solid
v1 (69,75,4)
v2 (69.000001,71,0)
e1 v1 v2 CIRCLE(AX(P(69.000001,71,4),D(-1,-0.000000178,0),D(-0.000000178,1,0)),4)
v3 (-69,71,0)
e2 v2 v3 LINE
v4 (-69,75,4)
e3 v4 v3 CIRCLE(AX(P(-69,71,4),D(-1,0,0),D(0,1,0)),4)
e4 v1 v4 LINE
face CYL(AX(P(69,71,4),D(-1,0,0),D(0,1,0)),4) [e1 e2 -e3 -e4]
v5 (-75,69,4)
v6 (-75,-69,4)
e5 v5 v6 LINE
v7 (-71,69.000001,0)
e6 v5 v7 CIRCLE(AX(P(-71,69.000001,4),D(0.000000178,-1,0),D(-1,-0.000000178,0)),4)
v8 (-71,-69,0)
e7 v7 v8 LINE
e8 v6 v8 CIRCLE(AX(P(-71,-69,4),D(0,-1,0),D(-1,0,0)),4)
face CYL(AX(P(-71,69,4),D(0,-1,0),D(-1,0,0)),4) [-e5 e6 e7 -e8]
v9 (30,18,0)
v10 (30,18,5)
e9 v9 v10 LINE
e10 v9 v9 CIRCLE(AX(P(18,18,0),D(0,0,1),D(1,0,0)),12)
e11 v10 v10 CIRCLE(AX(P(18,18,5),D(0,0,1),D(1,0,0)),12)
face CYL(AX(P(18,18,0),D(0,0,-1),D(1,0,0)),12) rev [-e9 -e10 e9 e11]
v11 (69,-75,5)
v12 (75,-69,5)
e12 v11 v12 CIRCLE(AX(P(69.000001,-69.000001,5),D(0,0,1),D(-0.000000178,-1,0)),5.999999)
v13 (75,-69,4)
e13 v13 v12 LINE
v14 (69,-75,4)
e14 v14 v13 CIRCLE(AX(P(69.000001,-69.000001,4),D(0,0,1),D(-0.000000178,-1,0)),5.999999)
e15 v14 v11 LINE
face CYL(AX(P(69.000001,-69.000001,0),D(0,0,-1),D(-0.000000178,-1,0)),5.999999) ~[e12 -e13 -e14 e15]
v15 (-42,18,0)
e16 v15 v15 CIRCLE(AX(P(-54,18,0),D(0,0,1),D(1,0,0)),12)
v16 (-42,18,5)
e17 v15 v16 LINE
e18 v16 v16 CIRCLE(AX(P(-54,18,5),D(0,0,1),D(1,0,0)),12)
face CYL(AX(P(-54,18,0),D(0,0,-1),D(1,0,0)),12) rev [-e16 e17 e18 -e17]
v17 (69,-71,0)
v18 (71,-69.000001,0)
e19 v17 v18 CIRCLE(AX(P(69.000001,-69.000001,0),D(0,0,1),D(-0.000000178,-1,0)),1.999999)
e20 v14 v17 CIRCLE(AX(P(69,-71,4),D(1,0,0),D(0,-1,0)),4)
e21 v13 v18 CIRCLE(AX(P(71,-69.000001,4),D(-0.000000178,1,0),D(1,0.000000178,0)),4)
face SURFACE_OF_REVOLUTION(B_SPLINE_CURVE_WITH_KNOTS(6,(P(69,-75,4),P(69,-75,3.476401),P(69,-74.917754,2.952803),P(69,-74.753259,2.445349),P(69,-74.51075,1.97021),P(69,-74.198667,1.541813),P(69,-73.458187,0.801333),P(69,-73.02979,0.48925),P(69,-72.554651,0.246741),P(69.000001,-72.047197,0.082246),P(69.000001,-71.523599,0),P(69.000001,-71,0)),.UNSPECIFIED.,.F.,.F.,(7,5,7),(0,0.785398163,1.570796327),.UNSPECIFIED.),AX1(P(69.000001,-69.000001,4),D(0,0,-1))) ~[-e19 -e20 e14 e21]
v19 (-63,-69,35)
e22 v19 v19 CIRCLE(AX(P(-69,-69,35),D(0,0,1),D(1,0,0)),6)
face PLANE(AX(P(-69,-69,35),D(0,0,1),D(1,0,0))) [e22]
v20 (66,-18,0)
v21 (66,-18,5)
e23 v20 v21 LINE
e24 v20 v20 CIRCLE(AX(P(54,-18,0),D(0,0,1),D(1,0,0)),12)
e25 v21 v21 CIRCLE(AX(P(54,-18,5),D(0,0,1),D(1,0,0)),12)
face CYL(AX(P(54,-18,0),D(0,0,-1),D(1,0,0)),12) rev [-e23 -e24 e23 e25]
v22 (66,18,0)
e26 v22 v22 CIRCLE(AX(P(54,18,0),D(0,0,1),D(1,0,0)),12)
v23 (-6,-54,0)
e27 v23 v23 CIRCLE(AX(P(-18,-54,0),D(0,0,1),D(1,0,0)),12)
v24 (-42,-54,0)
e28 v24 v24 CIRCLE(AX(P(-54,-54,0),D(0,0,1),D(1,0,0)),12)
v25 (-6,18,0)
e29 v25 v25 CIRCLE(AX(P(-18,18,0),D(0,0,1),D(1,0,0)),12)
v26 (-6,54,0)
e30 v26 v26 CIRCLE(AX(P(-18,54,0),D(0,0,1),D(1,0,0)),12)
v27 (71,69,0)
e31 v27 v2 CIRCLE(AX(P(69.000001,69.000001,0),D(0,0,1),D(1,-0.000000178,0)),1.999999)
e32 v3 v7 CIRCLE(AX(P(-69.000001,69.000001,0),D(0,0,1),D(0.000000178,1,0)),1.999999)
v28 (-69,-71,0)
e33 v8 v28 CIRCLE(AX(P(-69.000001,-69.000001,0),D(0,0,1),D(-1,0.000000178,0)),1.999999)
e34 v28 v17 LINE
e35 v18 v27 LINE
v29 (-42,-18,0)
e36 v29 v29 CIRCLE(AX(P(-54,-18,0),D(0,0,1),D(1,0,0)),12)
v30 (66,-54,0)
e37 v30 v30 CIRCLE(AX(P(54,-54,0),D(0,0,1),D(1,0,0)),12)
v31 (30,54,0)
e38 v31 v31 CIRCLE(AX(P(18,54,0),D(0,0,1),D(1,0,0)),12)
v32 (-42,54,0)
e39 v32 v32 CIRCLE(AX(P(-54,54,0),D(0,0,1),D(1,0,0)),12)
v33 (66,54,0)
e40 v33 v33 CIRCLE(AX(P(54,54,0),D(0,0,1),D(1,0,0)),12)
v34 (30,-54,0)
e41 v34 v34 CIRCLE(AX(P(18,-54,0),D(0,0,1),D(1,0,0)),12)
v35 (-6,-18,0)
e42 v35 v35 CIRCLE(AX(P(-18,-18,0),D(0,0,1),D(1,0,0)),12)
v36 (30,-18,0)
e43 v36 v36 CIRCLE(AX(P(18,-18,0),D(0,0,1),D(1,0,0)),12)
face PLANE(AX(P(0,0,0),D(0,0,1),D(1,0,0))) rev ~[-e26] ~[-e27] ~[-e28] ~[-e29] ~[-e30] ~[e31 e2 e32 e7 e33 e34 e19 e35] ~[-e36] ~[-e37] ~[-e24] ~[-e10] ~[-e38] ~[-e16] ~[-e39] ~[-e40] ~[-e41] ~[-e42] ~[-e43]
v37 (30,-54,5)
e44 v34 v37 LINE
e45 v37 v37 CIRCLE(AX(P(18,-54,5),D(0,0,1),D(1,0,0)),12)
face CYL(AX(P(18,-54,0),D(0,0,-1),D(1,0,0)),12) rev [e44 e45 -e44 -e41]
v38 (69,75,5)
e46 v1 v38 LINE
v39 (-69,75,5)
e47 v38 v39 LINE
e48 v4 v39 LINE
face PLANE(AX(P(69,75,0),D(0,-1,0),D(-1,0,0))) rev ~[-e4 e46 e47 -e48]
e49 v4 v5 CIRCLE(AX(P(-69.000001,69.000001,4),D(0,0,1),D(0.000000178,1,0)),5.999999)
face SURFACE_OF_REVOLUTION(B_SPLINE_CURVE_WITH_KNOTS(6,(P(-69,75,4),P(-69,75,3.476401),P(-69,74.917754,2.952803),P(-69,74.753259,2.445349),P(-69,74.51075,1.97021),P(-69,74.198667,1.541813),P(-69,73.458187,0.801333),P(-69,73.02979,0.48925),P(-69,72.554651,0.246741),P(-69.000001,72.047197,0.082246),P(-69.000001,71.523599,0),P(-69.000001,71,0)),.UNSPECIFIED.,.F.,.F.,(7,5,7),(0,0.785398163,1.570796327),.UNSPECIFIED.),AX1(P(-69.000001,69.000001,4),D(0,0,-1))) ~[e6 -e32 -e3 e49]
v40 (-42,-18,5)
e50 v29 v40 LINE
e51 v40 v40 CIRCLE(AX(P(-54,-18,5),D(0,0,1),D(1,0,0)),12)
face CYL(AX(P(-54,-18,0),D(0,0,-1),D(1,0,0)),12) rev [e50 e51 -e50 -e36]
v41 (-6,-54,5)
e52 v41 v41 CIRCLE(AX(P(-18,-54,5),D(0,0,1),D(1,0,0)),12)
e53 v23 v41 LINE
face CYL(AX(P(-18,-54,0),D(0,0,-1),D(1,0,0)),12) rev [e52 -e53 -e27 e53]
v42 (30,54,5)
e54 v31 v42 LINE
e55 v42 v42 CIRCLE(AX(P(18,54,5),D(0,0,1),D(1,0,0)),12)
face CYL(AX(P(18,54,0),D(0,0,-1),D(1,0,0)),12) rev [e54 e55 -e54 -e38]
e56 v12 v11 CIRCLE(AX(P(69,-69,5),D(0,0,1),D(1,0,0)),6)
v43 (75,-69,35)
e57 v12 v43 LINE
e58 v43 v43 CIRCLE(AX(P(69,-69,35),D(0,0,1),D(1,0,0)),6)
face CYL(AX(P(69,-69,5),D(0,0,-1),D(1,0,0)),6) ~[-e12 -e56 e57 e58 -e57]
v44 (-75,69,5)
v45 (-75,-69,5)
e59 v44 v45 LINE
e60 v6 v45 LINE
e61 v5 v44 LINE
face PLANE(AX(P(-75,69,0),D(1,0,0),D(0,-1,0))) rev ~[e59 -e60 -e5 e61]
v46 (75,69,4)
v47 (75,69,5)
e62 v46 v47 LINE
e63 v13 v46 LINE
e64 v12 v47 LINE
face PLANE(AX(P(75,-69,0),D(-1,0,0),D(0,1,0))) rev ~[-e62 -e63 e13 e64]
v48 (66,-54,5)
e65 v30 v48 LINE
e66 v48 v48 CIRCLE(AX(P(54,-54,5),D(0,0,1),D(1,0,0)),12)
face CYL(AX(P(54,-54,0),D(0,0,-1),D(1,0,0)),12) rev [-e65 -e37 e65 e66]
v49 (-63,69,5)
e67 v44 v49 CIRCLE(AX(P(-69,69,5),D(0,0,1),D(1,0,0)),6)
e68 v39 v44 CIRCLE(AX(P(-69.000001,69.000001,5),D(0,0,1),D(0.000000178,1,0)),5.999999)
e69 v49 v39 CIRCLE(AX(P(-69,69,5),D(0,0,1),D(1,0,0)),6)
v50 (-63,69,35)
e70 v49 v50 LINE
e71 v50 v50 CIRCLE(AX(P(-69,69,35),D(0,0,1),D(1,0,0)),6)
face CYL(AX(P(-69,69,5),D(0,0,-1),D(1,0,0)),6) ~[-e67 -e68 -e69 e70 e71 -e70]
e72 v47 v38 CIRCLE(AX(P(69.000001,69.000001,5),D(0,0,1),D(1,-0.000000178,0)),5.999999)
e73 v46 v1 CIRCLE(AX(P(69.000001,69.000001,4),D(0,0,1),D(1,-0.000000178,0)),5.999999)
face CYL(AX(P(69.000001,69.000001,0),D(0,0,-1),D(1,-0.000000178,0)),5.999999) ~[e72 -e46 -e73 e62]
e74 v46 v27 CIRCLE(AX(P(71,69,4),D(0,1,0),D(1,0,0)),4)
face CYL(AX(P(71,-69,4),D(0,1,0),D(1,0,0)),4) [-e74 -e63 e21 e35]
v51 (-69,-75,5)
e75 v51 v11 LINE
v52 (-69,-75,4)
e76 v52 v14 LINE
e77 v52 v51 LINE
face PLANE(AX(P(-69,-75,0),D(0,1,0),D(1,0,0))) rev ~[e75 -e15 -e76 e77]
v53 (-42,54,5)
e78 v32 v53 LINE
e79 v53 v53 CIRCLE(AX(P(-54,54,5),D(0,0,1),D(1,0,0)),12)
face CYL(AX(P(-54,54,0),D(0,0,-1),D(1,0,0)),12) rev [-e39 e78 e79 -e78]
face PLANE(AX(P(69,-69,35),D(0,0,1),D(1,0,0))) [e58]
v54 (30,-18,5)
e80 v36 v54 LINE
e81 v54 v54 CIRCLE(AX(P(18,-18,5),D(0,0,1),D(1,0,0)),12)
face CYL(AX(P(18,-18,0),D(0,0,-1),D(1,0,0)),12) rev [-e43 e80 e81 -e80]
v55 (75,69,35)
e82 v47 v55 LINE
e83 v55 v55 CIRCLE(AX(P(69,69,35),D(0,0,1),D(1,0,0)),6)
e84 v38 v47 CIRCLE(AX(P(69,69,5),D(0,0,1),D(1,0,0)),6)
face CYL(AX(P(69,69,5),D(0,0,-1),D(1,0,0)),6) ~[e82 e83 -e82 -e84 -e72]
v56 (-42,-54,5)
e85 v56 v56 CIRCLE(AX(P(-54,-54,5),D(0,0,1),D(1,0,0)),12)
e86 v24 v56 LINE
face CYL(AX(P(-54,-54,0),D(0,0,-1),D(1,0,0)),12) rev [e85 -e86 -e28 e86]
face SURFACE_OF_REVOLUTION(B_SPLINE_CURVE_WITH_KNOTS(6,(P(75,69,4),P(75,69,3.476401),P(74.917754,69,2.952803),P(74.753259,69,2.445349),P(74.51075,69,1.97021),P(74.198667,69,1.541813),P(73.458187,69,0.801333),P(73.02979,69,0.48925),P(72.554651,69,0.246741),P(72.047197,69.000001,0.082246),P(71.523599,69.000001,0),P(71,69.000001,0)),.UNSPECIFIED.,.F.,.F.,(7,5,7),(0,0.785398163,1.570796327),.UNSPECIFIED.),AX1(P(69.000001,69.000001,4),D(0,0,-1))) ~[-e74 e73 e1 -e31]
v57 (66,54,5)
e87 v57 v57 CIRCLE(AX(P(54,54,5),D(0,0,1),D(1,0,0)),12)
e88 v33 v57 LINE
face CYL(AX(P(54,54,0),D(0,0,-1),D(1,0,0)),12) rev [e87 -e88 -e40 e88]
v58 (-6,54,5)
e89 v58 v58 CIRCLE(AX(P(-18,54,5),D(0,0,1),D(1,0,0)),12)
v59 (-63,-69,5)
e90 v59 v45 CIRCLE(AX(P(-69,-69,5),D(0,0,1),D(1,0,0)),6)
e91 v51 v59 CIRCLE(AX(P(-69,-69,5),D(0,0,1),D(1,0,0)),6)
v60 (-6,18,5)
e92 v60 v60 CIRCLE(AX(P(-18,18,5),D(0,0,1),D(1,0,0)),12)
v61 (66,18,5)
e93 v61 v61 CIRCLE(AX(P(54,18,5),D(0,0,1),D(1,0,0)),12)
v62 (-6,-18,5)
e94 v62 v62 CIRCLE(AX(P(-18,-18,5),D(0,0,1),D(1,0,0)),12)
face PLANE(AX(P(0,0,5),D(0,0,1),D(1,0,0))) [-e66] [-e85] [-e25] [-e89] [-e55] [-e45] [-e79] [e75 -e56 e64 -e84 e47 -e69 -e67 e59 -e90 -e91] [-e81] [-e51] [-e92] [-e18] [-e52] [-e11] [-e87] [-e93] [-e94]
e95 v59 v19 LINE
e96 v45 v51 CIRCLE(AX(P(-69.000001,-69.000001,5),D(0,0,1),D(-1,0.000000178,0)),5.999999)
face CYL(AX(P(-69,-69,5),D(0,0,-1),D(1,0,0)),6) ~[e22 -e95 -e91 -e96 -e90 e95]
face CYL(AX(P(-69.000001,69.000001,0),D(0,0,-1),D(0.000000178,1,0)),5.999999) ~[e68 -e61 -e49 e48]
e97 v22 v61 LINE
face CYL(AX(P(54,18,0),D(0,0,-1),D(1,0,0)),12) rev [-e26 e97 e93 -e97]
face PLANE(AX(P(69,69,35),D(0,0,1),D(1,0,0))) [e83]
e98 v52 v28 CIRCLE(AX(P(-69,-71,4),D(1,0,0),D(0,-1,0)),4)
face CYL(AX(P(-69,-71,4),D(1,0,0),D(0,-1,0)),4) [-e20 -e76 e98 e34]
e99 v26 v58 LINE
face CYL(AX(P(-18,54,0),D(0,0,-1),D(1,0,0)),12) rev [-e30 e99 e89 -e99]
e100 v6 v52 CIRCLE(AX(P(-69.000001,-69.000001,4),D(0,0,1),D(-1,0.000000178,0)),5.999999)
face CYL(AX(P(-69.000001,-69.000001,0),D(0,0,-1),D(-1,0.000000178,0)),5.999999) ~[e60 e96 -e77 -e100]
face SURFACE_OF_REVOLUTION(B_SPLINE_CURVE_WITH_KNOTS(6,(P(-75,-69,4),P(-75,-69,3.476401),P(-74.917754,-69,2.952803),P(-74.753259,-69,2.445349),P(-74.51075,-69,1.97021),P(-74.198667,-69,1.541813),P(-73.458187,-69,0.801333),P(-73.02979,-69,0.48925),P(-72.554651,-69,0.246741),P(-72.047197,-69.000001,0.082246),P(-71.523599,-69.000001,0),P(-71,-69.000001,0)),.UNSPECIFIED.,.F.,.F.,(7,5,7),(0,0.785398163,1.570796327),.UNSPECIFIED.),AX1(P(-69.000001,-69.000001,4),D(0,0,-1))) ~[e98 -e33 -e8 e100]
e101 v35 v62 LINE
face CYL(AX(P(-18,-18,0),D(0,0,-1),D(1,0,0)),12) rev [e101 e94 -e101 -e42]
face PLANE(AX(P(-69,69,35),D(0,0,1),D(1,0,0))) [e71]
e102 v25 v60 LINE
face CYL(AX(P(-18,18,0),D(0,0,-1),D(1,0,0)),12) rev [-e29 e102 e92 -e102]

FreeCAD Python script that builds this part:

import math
import FreeCAD as App
import Part
import Sketcher
from FreeCAD import Vector
Q = App.Units.Quantity


def edges_at(feature, points):
    """Names of the edges that pass closest to the given points."""
    edges = feature.Shape.Edges
    near = lambda p: min(range(len(edges)), key=lambda i: edges[i].distToShape(Part.Vertex(*p))[0])
    return sorted({f"Edge{near(p) + 1}" for p in points})

doc = App.newDocument("Part")
body = doc.addObject("PartDesign::Body", "Body")

# Sketch on XY plane
sketch1 = doc.addObject("Sketcher::SketchObject", "Sketch")
body.addObject(sketch1)
sketch1.AttachmentSupport = (doc.XY_Plane, [""])
sketch1.MapMode = "FlatFace"
sketch1.addGeometry(Part.LineSegment(Vector(-69, -75, 0), Vector(69, -75, 0)), False)
sketch1.addGeometry(Part.ArcOfCircle(Part.Circle(Vector(69, -69, 0), Vector(0, 0, 1), 6), math.radians(-90), math.radians(0)), False)
sketch1.addGeometry(Part.LineSegment(Vector(75, -69, 0), Vector(75, 69, 0)), False)
sketch1.addGeometry(Part.ArcOfCircle(Part.Circle(Vector(69, 69, 0), Vector(0, 0, 1), 6), math.radians(0), math.radians(90)), False)
sketch1.addGeometry(Part.LineSegment(Vector(69, 75, 0), Vector(-69, 75, 0)), False)
sketch1.addGeometry(Part.ArcOfCircle(Part.Circle(Vector(-69, 69, 0), Vector(0, 0, 1), 6), math.radians(90), math.radians(180)), False)
sketch1.addGeometry(Part.LineSegment(Vector(-75, 69, 0), Vector(-75, -69, 0)), False)
sketch1.addGeometry(Part.ArcOfCircle(Part.Circle(Vector(-69, -69, 0), Vector(0, 0, 1), 6), math.radians(180), math.radians(270)), False)
sketch1.addGeometry(Part.Circle(Vector(-54, -54, 0), Vector(0, 0, 1), 12), False)
sketch1.addGeometry(Part.Circle(Vector(-18, -54, 0), Vector(0, 0, 1), 12), False)
sketch1.addGeometry(Part.Circle(Vector(-54, -18, 0), Vector(0, 0, 1), 12), False)
sketch1.addGeometry(Part.Circle(Vector(-18, -18, 0), Vector(0, 0, 1), 12), False)
sketch1.addGeometry(Part.Circle(Vector(18, -54, 0), Vector(0, 0, 1), 12), False)
sketch1.addGeometry(Part.Circle(Vector(54, -54, 0), Vector(0, 0, 1), 12), False)
sketch1.addGeometry(Part.Circle(Vector(18, -18, 0), Vector(0, 0, 1), 12), False)
sketch1.addGeometry(Part.Circle(Vector(54, -18, 0), Vector(0, 0, 1), 12), False)
sketch1.addGeometry(Part.Circle(Vector(-54, 18, 0), Vector(0, 0, 1), 12), False)
sketch1.addGeometry(Part.Circle(Vector(-18, 18, 0), Vector(0, 0, 1), 12), False)
sketch1.addGeometry(Part.Circle(Vector(-54, 54, 0), Vector(0, 0, 1), 12), False)
sketch1.addGeometry(Part.Circle(Vector(-18, 54, 0), Vector(0, 0, 1), 12), False)
sketch1.addGeometry(Part.Circle(Vector(18, 18, 0), Vector(0, 0, 1), 12), False)
sketch1.addGeometry(Part.Circle(Vector(54, 18, 0), Vector(0, 0, 1), 12), False)
sketch1.addGeometry(Part.Circle(Vector(18, 54, 0), Vector(0, 0, 1), 12), False)
sketch1.addGeometry(Part.Circle(Vector(54, 54, 0), Vector(0, 0, 1), 12), False)
sketch1.addConstraint(Sketcher.Constraint("Tangent", 0, 2, 1, 1))
sketch1.addConstraint(Sketcher.Constraint("Tangent", 1, 2, 2, 1))
sketch1.addConstraint(Sketcher.Constraint("Tangent", 2, 2, 3, 1))
sketch1.addConstraint(Sketcher.Constraint("Tangent", 3, 2, 4, 1))
sketch1.addConstraint(Sketcher.Constraint("Tangent", 4, 2, 5, 1))
sketch1.addConstraint(Sketcher.Constraint("Tangent", 5, 2, 6, 1))
sketch1.addConstraint(Sketcher.Constraint("Tangent", 6, 2, 7, 1))
sketch1.addConstraint(Sketcher.Constraint("Tangent", 7, 2, 0, 1))
sketch1.addConstraint(Sketcher.Constraint("Horizontal", 0))
sketch1.addConstraint(Sketcher.Constraint("Vertical", 2))
sketch1.addConstraint(Sketcher.Constraint("Horizontal", 4))
sketch1.addConstraint(Sketcher.Constraint("Vertical", 6))
sketch1.addConstraint(Sketcher.Constraint("Equal", 1, 3))
sketch1.addConstraint(Sketcher.Constraint("Equal", 3, 5))
sketch1.addConstraint(Sketcher.Constraint("Equal", 5, 7))
sketch1.addConstraint(Sketcher.Constraint("Equal", 8, 9))
sketch1.addConstraint(Sketcher.Constraint("Equal", 9, 10))
sketch1.addConstraint(Sketcher.Constraint("Equal", 10, 11))
sketch1.addConstraint(Sketcher.Constraint("Equal", 11, 12))
sketch1.addConstraint(Sketcher.Constraint("Equal", 12, 13))
sketch1.addConstraint(Sketcher.Constraint("Equal", 13, 14))
sketch1.addConstraint(Sketcher.Constraint("Equal", 14, 15))
sketch1.addConstraint(Sketcher.Constraint("Equal", 15, 16))
sketch1.addConstraint(Sketcher.Constraint("Equal", 16, 17))
sketch1.addConstraint(Sketcher.Constraint("Equal", 17, 18))
sketch1.addConstraint(Sketcher.Constraint("Equal", 18, 19))
sketch1.addConstraint(Sketcher.Constraint("Equal", 19, 20))
sketch1.addConstraint(Sketcher.Constraint("Equal", 20, 21))
sketch1.addConstraint(Sketcher.Constraint("Equal", 21, 22))
sketch1.addConstraint(Sketcher.Constraint("Equal", 22, 23))
sketch1.addConstraint(Sketcher.Constraint("Symmetric", 1, 3, 5, 3, -1, 1))
sketch1.addConstraint(Sketcher.Constraint("Symmetric", 15, 3, 16, 3, -1, 1))
sketch1.addConstraint(Sketcher.Constraint("Symmetric", 14, 3, 17, 3, -1, 1))
sketch1.addConstraint(Sketcher.Constraint("Symmetric", 13, 3, 18, 3, -1, 1))
sketch1.addConstraint(Sketcher.Constraint("Symmetric", 12, 3, 19, 3, -1, 1))
sketch1.addConstraint(Sketcher.Constraint("Symmetric", 11, 3, 20, 3, -1, 1))
sketch1.addConstraint(Sketcher.Constraint("Symmetric", 10, 3, 21, 3, -1, 1))
sketch1.addConstraint(Sketcher.Constraint("Symmetric", 9, 3, 22, 3, -1, 1))
sketch1.addConstraint(Sketcher.Constraint("Symmetric", 8, 3, 23, 3, -1, 1))
sketch1.addConstraint(Sketcher.Constraint("Symmetric", 9, 3, 12, 3, -2))
sketch1.addConstraint(Sketcher.Constraint("Symmetric", 8, 3, 13, 3, -2))
sketch1.addConstraint(Sketcher.Constraint("Symmetric", 11, 3, 14, 3, -2))
sketch1.addConstraint(Sketcher.Constraint("Symmetric", 10, 3, 15, 3, -2))
sketch1.addConstraint(Sketcher.Constraint("Horizontal", 8, 3, 9, 3))
sketch1.addConstraint(Sketcher.Constraint("Horizontal", 10, 3, 11, 3))
sketch1.addConstraint(Sketcher.Constraint("Vertical", 8, 3, 10, 3))
sketch1.addConstraint(Sketcher.Constraint("Vertical", 9, 3, 11, 3))
sketch1.addConstraint(Sketcher.Constraint("Equal", 4, 2))
sketch1.addConstraint(Sketcher.Constraint("Diameter", 8, Q("24 mm")))
sketch1.addConstraint(Sketcher.Constraint("Radius", 1, Q("5.999999 mm")))
sketch1.addConstraint(Sketcher.Constraint("DistanceX", 0, 1, 0, 2, Q("138 mm")))
sketch1.addConstraint(Sketcher.Constraint("DistanceX", 8, 3, -1, 1, Q("54 mm")))
sketch1.addConstraint(Sketcher.Constraint("DistanceY", 8, 3, -1, 1, Q("54 mm")))
sketch1.addConstraint(Sketcher.Constraint("DistanceX", 9, 3, -1, 1, Q("18 mm")))
sketch1.addConstraint(Sketcher.Constraint("DistanceY", 10, 3, -1, 1, Q("18 mm")))
pad1 = doc.addObject("PartDesign::Pad", "Pad")
body.addObject(pad1)
pad1.Profile = sketch1
pad1.Length = 5

# Sketch on XY plane
sketch2 = doc.addObject("Sketcher::SketchObject", "Sketch001")
body.addObject(sketch2)
sketch2.AttachmentSupport = (doc.XY_Plane, [""])
sketch2.MapMode = "FlatFace"
sketch2.AttachmentOffset = App.Placement(Vector(0, 0, 5), App.Rotation())
sketch2.addGeometry(Part.Circle(Vector(-69, 69, 0), Vector(0, 0, 1), 6), False)
sketch2.addGeometry(Part.Circle(Vector(69, 69, 0), Vector(0, 0, 1), 6), False)
sketch2.addGeometry(Part.Circle(Vector(69, -69, 0), Vector(0, 0, 1), 6), False)
sketch2.addGeometry(Part.Circle(Vector(-69, -69, 0), Vector(0, 0, 1), 6), False)
sketch2.addConstraint(Sketcher.Constraint("Equal", 0, 1))
sketch2.addConstraint(Sketcher.Constraint("Equal", 1, 2))
sketch2.addConstraint(Sketcher.Constraint("Equal", 2, 3))
sketch2.addConstraint(Sketcher.Constraint("Symmetric", 0, 3, 2, 3, -1, 1))
sketch2.addConstraint(Sketcher.Constraint("Symmetric", 1, 3, 3, 3, -1, 1))
sketch2.addConstraint(Sketcher.Constraint("Symmetric", 0, 3, 1, 3, -2))
sketch2.addConstraint(Sketcher.Constraint("Diameter", 0, Q("12 mm")))
sketch2.addConstraint(Sketcher.Constraint("DistanceX", 0, 3, -1, 1, Q("69 mm")))
sketch2.addConstraint(Sketcher.Constraint("DistanceY", -1, 1, 0, 3, Q("69 mm")))
pad2 = doc.addObject("PartDesign::Pad", "Pad001")
body.addObject(pad2)
pad2.Profile = sketch2
pad2.Length = 30
doc.recompute()

fillet = doc.addObject("PartDesign::Fillet", "Fillet")
body.addObject(fillet)
fillet.Base = (pad2, edges_at(pad2, [
    (0, -75, 0),
    (-75, 0, 0),
    (0, 75, 0),
    (75, 0, 0),
]))
fillet.Radius = 4

doc.recompute()
